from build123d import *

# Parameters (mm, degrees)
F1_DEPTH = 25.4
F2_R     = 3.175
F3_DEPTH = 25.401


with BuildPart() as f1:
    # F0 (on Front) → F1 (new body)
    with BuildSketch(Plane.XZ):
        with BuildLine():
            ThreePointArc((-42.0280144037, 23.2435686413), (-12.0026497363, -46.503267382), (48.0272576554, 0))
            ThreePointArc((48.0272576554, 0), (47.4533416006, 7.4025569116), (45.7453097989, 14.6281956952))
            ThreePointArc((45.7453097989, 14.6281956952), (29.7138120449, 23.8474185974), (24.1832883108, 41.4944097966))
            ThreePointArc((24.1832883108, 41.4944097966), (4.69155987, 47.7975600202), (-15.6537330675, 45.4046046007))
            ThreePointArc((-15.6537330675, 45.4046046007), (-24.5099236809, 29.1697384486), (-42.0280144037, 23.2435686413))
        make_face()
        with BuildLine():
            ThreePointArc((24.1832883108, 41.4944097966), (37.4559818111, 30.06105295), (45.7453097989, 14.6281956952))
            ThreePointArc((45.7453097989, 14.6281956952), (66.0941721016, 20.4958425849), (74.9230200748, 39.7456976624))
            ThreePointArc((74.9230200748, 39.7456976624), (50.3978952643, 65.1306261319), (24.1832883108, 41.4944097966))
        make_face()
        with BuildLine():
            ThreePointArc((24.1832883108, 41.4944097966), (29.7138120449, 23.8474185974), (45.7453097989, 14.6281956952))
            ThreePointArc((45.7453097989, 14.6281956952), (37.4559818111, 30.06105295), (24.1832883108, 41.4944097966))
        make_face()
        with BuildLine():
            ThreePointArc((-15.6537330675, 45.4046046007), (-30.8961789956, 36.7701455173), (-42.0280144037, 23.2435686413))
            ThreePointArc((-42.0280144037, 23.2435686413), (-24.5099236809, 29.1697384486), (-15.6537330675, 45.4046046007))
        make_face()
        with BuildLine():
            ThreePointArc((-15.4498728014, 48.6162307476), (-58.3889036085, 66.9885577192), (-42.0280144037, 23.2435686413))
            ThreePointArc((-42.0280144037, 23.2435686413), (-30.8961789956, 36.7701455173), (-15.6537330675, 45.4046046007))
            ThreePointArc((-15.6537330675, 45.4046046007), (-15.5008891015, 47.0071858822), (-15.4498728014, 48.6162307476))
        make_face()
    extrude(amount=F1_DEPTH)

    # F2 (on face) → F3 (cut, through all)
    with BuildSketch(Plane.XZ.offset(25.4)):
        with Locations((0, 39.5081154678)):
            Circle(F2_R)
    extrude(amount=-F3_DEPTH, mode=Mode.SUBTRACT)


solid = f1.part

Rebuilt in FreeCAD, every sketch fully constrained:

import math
import FreeCAD as App
import Part
import Sketcher
Q = App.Units.Quantity

doc = App.newDocument("Part")
body = doc.addObject("PartDesign::Body", "Body")

sketch1 = body.newObject("Sketcher::SketchObject", "Sketch")
sketch1.AttachmentSupport = (doc.getObject("XZ_Plane"), [""])
sketch1.MapMode = "FlatFace"
sketch1.addGeometry([
    Part.ArcOfCircle(Part.Circle(App.Vector(0, 0, 0), App.Vector(0, 0, 1), 48.027258), math.radians(151.055238), math.radians(360)),
    Part.ArcOfCircle(Part.Circle(App.Vector(0, 0, 0), App.Vector(0, 0, 1), 48.027258), math.radians(0), math.radians(17.732965)),
    Part.ArcOfCircle(Part.Circle(App.Vector(49.52302, 39.745698, 0), App.Vector(0, 0, 1), 25.4), math.radians(-98.553263), math.radians(0)),
    Part.ArcOfCircle(Part.Circle(App.Vector(49.52302, 39.745698, 0), App.Vector(0, 0, 1), 25.4), math.radians(0), math.radians(176.052238)),
    Part.ArcOfCircle(Part.Circle(App.Vector(0, 0, 0), App.Vector(0, 0, 1), 48.027258), math.radians(59.766011), math.radians(109.022192)),
    Part.ArcOfCircle(Part.Circle(App.Vector(-40.849873, 48.616231, 0), App.Vector(0, 0, 1), 25.4), math.radians(-7.264036), math.radians(0)),
    Part.ArcOfCircle(Part.Circle(App.Vector(-40.849873, 48.616231, 0), App.Vector(0, 0, 1), 25.4), math.radians(0), math.radians(267.341466)),
], False)
sketch1.addConstraint([
    Sketcher.Constraint("Tangent", 0, 2, 1, 1),
    Sketcher.Constraint("Coincident", 1, 2, 2, 1),
    Sketcher.Constraint("Tangent", 2, 2, 3, 1),
    Sketcher.Constraint("Coincident", 3, 2, 4, 1),
    Sketcher.Constraint("Coincident", 4, 2, 5, 1),
    Sketcher.Constraint("Tangent", 5, 2, 6, 1),
    Sketcher.Constraint("Coincident", 6, 2, 0, 1),
    Sketcher.Constraint("Coincident", 0, 3, -1, 1),
    Sketcher.Constraint("Coincident", 4, 3, -1, 1),
    Sketcher.Constraint("Equal", 0, 1),
    Sketcher.Constraint("Equal", 2, 3),
    Sketcher.Constraint("Equal", 1, 4),
    Sketcher.Constraint("Equal", 3, 5),
    Sketcher.Constraint("Equal", 5, 6),
    Sketcher.Constraint("PointOnObject", 0, 2, -1),
    Sketcher.Constraint("Horizontal", 3, 3, 2, 2),
    Sketcher.Constraint("Horizontal", 6, 3, 5, 2),
    Sketcher.Constraint("Radius", 2, Q("1 in")),
    Sketcher.Constraint("Radius", 0, 48.027258),
    Sketcher.Constraint("DistanceY", 1, 2, 2, 3, 25.117502),
    Sketcher.Constraint("DistanceX", -1, 1, 2, 3, 49.52302),
    Sketcher.Constraint("DistanceY", -1, 1, 5, 3, 48.616231),
    Sketcher.Constraint("DistanceY", -1, 1, 6, 2, 23.243569),
])
pad1 = body.newObject("PartDesign::Pad", "Pad")
pad1.Profile = sketch1
pad1.Length = Q("1 in")

sketch2 = body.newObject("Sketcher::SketchObject", "Sketch001")
sketch2.AttachmentSupport = (doc.getObject("XZ_Plane"), [""])
sketch2.MapMode = "FlatFace"
sketch2.AttachmentOffset = App.Placement(App.Vector(0, 0, 1 * 25.4), App.Rotation())
sketch2.addGeometry(Part.Circle(App.Vector(0, 39.508115, 0), App.Vector(0, 0, 1), 3.175), False)
sketch2.addConstraint([
    Sketcher.Constraint("PointOnObject", 0, 3, -2),
    Sketcher.Constraint("Diameter", 0, Q("0.25 in")),
    Sketcher.Constraint("DistanceY", -1, 1, 0, 3, 39.508115),
])
pocket1 = body.newObject("PartDesign::Pocket", "Pocket")
pocket1.Profile = sketch2
pocket1.Type = "ThroughAll"

doc.recompute()
